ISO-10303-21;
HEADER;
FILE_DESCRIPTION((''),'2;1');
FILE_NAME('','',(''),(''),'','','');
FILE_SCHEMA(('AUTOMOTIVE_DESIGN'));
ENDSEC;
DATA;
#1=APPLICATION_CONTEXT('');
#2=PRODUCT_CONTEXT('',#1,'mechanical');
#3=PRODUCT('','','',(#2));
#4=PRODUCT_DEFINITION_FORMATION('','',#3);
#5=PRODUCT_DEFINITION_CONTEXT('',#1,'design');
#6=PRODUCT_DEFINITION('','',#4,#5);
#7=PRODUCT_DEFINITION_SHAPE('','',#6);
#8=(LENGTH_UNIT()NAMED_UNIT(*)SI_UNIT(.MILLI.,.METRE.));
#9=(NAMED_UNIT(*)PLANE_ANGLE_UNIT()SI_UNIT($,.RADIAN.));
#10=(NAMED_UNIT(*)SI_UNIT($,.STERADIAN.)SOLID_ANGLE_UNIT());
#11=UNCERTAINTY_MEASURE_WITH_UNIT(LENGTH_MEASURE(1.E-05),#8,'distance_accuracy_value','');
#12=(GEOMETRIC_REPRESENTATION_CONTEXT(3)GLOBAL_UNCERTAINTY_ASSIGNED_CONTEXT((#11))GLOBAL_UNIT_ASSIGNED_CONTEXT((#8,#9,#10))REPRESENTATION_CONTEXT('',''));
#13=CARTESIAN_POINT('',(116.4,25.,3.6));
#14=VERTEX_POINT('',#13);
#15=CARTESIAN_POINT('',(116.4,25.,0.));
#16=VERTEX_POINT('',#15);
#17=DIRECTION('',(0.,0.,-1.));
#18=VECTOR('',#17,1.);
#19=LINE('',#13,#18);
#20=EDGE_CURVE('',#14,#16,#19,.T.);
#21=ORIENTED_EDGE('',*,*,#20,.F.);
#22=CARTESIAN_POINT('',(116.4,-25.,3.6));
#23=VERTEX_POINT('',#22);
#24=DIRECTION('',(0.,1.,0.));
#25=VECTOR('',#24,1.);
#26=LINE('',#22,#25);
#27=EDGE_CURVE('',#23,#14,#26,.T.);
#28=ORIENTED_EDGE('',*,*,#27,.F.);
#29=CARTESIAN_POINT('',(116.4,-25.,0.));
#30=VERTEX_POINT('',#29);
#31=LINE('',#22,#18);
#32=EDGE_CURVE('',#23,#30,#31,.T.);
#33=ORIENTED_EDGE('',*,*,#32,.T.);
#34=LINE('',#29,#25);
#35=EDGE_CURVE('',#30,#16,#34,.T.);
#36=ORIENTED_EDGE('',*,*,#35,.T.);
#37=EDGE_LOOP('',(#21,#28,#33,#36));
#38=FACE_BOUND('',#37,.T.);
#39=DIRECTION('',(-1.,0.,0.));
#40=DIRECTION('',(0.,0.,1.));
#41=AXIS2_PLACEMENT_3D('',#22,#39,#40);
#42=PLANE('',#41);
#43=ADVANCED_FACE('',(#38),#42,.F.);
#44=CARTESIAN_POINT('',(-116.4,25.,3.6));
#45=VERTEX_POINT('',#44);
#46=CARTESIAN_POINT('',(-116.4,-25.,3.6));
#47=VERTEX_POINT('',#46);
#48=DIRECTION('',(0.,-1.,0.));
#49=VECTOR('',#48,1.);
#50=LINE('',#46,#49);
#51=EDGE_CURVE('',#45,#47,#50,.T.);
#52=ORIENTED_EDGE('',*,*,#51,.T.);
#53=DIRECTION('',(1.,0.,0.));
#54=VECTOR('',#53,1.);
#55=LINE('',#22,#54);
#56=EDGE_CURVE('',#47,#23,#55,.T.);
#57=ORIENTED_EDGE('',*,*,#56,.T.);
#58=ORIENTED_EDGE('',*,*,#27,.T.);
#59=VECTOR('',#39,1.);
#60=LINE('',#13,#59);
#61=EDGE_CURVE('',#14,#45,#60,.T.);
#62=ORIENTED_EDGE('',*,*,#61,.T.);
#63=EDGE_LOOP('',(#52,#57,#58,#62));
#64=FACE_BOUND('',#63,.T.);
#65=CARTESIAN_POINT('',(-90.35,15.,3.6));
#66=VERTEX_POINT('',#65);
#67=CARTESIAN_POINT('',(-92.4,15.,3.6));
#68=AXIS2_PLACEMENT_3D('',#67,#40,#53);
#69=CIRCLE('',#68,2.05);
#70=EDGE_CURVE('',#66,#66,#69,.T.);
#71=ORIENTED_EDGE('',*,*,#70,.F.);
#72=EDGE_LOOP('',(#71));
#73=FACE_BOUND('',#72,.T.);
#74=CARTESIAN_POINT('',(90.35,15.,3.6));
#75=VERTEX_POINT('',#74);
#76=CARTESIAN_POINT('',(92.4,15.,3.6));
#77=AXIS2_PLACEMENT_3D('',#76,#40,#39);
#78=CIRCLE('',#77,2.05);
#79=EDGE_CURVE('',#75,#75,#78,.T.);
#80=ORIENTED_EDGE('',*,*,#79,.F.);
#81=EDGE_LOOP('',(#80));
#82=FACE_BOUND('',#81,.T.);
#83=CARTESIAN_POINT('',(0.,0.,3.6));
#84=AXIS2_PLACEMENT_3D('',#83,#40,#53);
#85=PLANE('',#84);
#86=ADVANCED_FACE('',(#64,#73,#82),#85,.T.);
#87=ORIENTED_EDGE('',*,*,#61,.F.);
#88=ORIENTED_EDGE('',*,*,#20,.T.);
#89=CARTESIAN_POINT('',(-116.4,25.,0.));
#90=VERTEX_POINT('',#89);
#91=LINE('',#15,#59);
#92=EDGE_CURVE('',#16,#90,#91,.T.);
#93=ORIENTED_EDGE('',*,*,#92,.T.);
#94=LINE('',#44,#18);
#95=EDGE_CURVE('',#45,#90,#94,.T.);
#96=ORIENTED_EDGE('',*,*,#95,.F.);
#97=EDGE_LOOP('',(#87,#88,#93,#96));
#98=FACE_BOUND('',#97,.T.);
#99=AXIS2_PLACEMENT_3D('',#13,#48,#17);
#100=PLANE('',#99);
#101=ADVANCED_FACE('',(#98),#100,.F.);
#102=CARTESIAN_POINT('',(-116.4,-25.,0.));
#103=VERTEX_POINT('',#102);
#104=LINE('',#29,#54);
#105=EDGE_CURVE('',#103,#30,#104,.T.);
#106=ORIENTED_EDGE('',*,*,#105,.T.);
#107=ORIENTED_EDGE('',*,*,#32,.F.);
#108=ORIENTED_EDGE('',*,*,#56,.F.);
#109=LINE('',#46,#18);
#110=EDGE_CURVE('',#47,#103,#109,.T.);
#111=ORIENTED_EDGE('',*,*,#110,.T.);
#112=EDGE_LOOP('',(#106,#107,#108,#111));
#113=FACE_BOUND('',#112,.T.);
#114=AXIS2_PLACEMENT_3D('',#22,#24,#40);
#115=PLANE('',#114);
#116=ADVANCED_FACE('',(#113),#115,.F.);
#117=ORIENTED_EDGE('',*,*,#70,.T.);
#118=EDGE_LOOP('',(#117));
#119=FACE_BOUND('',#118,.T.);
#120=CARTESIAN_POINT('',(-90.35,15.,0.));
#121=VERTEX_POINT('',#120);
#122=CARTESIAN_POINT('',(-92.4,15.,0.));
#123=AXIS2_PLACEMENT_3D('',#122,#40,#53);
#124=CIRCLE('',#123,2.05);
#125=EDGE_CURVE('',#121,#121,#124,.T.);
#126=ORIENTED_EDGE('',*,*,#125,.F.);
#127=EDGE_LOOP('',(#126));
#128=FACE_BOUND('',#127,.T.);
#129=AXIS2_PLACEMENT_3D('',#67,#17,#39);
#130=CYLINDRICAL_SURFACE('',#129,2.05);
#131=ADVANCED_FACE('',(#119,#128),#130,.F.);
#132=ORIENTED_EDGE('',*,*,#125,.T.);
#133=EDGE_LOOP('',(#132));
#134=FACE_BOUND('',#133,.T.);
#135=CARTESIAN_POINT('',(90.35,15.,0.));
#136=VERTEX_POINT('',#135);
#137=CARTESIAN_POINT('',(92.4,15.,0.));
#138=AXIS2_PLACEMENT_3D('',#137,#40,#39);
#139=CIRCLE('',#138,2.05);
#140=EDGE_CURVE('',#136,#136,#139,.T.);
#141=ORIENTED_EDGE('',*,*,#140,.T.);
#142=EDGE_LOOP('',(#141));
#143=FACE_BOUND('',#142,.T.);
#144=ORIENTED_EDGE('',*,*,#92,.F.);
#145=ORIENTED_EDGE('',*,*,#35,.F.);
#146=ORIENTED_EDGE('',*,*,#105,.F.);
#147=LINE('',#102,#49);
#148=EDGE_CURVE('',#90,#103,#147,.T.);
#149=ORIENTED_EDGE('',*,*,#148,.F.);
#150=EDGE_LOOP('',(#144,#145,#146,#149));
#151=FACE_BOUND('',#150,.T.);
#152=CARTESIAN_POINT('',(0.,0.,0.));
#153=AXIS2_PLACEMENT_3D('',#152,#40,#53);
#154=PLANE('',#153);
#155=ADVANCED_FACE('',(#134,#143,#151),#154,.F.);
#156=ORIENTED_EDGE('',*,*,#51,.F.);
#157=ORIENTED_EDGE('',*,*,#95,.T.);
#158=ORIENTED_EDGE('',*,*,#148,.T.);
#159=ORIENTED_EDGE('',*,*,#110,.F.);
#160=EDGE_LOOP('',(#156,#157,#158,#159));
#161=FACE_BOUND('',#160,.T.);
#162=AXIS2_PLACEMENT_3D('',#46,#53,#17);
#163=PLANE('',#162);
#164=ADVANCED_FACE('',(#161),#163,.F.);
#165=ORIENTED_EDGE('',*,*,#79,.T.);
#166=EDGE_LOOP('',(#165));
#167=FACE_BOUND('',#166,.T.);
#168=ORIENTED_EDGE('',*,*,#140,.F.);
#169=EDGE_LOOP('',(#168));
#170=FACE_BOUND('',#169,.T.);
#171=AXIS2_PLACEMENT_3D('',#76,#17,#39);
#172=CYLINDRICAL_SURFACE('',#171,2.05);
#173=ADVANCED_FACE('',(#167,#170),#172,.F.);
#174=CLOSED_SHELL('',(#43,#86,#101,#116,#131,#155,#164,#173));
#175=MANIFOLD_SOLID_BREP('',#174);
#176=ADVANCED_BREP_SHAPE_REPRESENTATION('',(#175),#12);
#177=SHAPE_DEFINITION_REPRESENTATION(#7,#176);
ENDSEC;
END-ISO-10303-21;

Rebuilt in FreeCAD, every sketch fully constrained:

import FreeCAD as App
import Part
import Sketcher
from FreeCAD import Vector
Q = App.Units.Quantity

doc = App.newDocument("Part")
body = doc.addObject("PartDesign::Body", "Body")

# Sketch on XY plane
sketch1 = body.newObject("Sketcher::SketchObject", "Sketch")
sketch1.AttachmentSupport = (doc.getObject("XY_Plane"), [""])
sketch1.MapMode = "FlatFace"
sketch1.addGeometry([
    Part.LineSegment(Vector(-116.4, 25, 0), Vector(-116.4, -25, 0)),  # 0
    Part.LineSegment(Vector(-116.4, -25, 0), Vector(116.4, -25, 0)),  # 1
    Part.LineSegment(Vector(116.4, -25, 0), Vector(116.4, 25, 0)),  # 2
    Part.LineSegment(Vector(116.4, 25, 0), Vector(-116.4, 25, 0)),  # 3
    Part.Circle(Vector(-92.4, 15, 0), Vector(0, 0, 1), 2.05),  # 4
    Part.Circle(Vector(92.4, 15, 0), Vector(0, 0, 1), 2.05),  # 5
], False)
sketch1.addConstraint([
    Sketcher.Constraint("Coincident", 0, 2, 1, 1),
    Sketcher.Constraint("Coincident", 1, 2, 2, 1),
    Sketcher.Constraint("Coincident", 2, 2, 3, 1),
    Sketcher.Constraint("Coincident", 3, 2, 0, 1),
    Sketcher.Constraint("Vertical", 0),
    Sketcher.Constraint("Horizontal", 1),
    Sketcher.Constraint("Vertical", 2),
    Sketcher.Constraint("Horizontal", 3),
    Sketcher.Constraint("Equal", 4, 5),
    Sketcher.Constraint("Symmetric", 0, 2, 2, 2, -1, 1),
    Sketcher.Constraint("Symmetric", 4, 3, 5, 3, -2),
    Sketcher.Constraint("Diameter", 4, Q("4.1 mm")),
    Sketcher.Constraint("DistanceY", 0, 2, 0, 1, Q("50 mm")),
    Sketcher.Constraint("DistanceX", 1, 1, 1, 2, Q("232.8 mm")),
    Sketcher.Constraint("DistanceY", -1, 1, 4, 3, Q("15 mm")),
    Sketcher.Constraint("DistanceX", 0, 2, 4, 3, Q("24 mm")),
])
pad1 = body.newObject("PartDesign::Pad", "Pad")
pad1.Profile = sketch1
pad1.Length = 3.6

doc.recompute()
